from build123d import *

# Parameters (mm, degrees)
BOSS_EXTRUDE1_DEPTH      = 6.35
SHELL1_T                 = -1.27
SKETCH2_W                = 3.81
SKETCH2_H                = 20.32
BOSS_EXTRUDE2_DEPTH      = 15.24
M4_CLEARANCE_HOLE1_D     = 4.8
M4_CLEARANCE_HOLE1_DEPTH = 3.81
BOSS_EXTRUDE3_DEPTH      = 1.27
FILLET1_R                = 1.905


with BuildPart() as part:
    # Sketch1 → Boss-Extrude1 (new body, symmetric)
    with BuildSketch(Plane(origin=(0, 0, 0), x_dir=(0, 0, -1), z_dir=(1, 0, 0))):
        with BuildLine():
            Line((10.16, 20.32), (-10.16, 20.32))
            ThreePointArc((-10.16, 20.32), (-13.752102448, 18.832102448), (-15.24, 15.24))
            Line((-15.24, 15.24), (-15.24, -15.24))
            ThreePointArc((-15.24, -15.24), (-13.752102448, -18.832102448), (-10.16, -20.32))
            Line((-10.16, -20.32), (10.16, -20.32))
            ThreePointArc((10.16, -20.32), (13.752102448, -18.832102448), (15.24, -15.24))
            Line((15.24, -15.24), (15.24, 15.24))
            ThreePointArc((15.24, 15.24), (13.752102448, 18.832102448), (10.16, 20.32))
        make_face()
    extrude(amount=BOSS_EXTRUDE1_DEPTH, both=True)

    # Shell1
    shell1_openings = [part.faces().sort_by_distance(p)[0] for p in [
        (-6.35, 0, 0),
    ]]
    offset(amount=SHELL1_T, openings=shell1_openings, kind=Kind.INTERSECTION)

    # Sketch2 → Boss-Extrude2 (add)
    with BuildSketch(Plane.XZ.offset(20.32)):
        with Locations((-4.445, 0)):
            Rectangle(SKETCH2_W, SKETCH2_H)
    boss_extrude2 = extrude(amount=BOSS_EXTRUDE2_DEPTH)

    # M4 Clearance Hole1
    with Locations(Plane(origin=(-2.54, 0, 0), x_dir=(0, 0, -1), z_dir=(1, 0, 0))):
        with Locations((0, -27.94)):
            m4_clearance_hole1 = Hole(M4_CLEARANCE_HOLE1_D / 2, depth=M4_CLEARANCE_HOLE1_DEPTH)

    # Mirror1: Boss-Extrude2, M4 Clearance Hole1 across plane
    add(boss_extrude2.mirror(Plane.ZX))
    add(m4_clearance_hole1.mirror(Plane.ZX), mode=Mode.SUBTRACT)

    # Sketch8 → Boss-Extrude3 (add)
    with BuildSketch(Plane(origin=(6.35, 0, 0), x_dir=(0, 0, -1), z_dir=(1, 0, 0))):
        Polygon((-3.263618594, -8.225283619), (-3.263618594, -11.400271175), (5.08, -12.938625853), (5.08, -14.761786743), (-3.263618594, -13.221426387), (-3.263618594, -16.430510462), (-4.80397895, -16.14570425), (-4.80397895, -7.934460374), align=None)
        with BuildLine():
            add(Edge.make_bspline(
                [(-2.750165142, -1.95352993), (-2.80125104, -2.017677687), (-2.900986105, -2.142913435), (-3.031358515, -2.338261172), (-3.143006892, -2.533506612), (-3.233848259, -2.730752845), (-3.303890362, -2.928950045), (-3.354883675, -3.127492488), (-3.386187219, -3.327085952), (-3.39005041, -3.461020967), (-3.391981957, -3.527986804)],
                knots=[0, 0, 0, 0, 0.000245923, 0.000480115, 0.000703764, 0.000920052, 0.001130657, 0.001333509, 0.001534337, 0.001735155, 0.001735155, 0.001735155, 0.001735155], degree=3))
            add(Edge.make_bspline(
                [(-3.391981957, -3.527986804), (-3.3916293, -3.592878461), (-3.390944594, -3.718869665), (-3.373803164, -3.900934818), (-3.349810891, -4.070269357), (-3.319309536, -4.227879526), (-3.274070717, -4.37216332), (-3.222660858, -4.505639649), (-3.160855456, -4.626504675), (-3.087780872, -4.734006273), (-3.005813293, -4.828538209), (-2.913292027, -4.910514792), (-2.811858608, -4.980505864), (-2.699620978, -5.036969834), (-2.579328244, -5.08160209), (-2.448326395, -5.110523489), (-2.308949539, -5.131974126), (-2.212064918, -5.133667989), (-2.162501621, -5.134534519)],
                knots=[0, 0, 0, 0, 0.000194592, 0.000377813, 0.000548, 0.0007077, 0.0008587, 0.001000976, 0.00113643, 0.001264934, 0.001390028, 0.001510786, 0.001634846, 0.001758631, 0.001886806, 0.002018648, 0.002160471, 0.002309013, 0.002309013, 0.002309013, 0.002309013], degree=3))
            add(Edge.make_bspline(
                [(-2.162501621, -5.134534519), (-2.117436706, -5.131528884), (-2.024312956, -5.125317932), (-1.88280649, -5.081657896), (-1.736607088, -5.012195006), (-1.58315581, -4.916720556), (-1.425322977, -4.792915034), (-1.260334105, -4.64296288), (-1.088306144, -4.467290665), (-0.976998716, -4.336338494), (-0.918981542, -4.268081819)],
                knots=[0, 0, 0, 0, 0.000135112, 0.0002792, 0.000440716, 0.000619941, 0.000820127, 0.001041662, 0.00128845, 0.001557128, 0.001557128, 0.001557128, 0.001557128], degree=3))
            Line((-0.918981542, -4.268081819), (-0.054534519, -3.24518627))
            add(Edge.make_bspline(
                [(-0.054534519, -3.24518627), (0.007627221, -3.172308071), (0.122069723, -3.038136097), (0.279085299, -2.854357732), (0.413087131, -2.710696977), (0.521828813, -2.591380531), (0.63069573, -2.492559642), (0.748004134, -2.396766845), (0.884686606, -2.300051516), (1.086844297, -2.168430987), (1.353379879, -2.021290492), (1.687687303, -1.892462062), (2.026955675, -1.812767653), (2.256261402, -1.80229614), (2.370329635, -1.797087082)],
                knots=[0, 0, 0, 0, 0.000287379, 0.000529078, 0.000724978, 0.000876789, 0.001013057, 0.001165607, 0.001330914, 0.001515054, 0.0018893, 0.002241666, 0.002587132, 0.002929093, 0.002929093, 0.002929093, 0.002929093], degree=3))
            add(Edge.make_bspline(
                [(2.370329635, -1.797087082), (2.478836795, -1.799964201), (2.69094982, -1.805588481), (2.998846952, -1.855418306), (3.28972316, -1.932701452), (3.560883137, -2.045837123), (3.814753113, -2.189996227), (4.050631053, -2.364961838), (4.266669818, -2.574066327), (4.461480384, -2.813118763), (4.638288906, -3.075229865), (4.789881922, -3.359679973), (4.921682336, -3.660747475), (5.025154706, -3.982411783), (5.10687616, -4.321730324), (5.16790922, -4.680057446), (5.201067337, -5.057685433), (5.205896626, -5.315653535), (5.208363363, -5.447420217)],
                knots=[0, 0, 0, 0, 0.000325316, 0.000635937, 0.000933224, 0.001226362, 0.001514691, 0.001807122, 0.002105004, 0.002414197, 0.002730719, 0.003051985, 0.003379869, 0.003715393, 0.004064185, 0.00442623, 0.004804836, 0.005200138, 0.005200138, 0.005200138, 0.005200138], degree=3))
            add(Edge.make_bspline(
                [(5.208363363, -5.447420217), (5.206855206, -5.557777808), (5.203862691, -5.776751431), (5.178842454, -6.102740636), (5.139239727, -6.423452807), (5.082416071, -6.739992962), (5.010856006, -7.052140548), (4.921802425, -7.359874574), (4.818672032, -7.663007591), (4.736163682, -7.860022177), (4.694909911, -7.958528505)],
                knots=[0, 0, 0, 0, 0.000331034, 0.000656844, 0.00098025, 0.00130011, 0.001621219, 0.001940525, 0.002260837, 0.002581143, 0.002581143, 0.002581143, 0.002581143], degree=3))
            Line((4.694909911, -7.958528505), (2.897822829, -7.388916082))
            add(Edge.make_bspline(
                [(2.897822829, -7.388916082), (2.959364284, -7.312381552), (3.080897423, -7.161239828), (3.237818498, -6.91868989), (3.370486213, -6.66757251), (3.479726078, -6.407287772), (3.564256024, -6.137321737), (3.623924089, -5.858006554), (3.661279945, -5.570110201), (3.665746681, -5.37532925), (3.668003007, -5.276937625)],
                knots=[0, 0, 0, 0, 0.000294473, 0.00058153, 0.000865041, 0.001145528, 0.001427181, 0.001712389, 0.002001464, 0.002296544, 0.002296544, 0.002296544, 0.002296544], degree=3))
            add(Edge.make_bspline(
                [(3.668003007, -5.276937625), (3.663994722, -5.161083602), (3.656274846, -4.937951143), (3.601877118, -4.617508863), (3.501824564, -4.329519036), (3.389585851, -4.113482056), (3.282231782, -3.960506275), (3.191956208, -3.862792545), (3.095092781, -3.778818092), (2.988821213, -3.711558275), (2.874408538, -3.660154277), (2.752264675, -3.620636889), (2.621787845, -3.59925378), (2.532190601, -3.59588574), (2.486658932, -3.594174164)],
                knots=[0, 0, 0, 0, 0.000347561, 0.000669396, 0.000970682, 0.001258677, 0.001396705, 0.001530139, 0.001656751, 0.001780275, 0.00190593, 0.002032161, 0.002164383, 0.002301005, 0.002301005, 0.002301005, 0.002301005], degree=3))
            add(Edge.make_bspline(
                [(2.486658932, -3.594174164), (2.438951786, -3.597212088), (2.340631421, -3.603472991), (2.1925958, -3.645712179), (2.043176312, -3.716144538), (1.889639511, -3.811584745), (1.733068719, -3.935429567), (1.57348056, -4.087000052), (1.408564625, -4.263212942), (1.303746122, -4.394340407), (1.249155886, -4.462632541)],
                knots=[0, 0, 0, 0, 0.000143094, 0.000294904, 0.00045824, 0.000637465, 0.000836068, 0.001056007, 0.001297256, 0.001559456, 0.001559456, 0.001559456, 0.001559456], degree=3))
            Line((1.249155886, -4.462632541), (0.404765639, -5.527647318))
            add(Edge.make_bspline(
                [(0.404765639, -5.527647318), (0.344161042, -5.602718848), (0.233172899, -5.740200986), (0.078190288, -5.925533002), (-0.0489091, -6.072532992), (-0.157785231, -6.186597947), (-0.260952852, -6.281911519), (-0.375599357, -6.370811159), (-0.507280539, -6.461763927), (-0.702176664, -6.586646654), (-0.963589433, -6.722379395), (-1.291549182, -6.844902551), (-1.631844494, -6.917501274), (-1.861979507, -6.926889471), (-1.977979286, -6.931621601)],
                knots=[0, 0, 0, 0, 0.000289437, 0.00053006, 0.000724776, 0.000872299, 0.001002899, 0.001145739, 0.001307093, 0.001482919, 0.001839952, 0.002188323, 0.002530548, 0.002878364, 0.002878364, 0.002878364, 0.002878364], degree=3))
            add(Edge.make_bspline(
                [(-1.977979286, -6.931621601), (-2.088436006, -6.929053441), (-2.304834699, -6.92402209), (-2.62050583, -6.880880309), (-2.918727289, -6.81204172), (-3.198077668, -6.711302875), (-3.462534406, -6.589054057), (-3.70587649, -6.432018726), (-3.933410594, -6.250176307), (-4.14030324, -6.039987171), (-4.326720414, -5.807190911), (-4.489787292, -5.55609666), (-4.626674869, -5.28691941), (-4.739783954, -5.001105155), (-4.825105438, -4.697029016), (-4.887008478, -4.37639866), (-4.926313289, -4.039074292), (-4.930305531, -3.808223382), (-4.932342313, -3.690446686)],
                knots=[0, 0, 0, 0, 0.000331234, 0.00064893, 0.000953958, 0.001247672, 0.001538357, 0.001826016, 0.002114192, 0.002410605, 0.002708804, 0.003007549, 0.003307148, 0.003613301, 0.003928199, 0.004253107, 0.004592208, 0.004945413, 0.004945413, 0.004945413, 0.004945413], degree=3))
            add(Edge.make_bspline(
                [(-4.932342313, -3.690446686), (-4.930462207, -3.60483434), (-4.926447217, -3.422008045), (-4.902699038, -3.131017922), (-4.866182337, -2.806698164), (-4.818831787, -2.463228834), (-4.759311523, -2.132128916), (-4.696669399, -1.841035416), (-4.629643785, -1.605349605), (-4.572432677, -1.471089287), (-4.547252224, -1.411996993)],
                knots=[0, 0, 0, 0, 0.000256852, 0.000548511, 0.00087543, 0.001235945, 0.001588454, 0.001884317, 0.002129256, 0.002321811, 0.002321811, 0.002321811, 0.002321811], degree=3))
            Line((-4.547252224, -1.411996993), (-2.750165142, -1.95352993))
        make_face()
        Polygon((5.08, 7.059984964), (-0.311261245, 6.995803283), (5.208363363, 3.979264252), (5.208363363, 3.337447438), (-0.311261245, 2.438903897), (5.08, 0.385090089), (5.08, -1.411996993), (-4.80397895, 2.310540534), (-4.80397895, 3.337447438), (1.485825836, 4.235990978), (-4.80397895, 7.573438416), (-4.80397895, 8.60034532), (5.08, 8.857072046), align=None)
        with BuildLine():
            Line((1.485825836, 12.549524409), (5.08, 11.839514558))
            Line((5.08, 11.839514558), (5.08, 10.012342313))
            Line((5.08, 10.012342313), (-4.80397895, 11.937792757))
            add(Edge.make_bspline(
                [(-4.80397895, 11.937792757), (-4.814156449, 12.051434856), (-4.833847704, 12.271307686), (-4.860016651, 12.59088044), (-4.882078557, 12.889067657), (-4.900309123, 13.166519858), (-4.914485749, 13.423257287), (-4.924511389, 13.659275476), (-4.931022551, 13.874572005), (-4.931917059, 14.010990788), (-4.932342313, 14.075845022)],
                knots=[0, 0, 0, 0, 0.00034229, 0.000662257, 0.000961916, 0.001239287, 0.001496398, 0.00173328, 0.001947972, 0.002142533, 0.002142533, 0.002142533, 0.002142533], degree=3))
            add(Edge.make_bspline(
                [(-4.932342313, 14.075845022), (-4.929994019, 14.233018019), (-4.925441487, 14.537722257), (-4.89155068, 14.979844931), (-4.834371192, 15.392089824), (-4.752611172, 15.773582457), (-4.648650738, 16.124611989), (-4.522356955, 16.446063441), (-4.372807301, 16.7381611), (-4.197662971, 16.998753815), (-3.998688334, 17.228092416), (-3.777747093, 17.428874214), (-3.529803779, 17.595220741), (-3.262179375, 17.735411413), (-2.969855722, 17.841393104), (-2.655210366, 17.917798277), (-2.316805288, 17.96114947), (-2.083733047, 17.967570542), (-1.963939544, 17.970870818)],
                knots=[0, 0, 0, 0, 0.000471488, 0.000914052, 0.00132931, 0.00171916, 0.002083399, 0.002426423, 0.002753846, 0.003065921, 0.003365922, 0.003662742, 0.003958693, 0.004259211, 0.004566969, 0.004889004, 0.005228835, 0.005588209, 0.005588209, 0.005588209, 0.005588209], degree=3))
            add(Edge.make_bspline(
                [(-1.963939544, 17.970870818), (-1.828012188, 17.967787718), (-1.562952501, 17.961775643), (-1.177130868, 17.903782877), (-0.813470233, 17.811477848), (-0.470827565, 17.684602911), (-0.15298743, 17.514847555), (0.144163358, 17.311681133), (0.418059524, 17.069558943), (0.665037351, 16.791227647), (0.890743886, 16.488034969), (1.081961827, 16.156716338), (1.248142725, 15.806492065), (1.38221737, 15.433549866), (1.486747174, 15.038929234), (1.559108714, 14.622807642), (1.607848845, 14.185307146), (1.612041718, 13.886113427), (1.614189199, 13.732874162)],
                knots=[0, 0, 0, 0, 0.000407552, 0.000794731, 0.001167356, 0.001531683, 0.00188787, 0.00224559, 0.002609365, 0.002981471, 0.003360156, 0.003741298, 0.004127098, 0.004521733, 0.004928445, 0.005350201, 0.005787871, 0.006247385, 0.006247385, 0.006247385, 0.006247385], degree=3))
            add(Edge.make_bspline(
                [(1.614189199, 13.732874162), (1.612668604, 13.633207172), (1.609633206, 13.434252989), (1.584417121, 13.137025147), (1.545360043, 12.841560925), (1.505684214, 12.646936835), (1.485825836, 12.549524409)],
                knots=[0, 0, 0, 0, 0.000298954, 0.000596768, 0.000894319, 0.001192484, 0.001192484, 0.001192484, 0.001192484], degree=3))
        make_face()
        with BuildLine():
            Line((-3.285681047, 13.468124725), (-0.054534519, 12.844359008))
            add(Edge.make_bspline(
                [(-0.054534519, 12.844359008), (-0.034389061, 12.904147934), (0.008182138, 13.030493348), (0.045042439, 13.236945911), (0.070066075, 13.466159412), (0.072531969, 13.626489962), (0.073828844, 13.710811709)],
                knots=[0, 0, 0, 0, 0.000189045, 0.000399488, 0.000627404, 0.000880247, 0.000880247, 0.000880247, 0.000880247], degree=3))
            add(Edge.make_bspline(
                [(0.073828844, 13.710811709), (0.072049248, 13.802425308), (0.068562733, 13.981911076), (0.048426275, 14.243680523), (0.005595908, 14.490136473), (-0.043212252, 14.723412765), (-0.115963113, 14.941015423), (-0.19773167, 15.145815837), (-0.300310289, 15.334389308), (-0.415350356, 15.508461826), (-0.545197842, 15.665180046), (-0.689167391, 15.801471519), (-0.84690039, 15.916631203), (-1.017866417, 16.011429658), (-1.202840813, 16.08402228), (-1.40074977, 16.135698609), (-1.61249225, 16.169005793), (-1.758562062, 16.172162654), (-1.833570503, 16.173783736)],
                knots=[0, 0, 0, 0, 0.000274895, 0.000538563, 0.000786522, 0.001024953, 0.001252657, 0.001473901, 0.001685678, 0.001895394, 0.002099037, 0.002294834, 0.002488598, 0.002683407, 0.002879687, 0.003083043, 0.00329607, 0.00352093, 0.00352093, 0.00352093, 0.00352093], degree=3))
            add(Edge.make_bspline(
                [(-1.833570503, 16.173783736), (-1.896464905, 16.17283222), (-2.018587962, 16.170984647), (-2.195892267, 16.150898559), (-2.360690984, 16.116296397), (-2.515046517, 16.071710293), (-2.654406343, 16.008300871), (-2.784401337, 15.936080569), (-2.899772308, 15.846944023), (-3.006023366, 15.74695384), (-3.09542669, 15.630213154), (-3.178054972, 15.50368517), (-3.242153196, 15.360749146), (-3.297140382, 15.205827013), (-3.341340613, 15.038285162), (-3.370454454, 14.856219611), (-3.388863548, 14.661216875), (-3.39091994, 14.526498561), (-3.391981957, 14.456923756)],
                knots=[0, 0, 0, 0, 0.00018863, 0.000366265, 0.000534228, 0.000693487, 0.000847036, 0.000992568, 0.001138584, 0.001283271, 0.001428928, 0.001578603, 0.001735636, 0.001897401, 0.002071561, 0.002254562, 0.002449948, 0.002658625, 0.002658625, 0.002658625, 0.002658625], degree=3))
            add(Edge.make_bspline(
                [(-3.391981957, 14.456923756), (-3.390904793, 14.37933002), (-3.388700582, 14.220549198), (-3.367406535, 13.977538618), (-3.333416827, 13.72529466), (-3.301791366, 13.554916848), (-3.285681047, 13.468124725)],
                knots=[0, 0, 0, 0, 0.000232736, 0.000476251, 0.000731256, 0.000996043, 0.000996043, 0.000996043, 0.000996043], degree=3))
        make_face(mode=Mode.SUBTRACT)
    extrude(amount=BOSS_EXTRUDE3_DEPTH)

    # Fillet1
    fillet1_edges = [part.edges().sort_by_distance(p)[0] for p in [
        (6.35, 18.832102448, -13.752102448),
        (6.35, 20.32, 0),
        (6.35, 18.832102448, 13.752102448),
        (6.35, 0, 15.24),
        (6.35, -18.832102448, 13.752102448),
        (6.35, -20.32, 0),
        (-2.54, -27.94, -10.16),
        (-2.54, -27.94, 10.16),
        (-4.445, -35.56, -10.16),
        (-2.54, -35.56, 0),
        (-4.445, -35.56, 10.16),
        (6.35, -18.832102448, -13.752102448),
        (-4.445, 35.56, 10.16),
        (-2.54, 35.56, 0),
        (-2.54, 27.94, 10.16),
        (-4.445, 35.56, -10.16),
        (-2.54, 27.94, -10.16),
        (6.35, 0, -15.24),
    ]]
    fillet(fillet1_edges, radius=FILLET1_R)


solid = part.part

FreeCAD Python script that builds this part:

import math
import FreeCAD as App
import Part
import Sketcher

V = App.Vector
Q = App.Units.Quantity


def edges_at(feature, points):
    """Names of the edges that pass closest to the given points."""
    edges = feature.Shape.Edges
    near = lambda p: min(range(len(edges)), key=lambda i: edges[i].distToShape(Part.Vertex(*p))[0])
    return sorted({f"Edge{near(p) + 1}" for p in points})


def faces_at(feature, points):
    """Names of the faces that lie closest to the given points."""
    faces = feature.Shape.Faces
    near = lambda p: min(range(len(faces)), key=lambda i: faces[i].distToShape(Part.Vertex(*p))[0])
    return sorted({f"Face{near(p) + 1}" for p in points})

doc = App.newDocument("Part")
body = doc.addObject("PartDesign::Body", "Body")

# Sketch on YZ plane
sketch1 = body.newObject("Sketcher::SketchObject", "Sketch")
sketch1.AttachmentSupport = (doc.getObject("YZ_Plane"), [""])
sketch1.MapMode = "FlatFace"
sketch1.addGeometry([
    Part.LineSegment(V(20.32, -10.16, 0), V(20.32, 10.16, 0)),  # 0
    Part.ArcOfCircle(Part.Circle(V(15.24, 10.16, 0), V(0, 0, 1), 5.08), math.radians(0), math.radians(90)),  # 1
    Part.LineSegment(V(15.24, 15.24, 0), V(-15.24, 15.24, 0)),  # 2
    Part.ArcOfCircle(Part.Circle(V(-15.24, 10.16, 0), V(0, 0, 1), 5.08), math.radians(90), math.radians(180)),  # 3
    Part.LineSegment(V(-20.32, 10.16, 0), V(-20.32, -10.16, 0)),  # 4
    Part.ArcOfCircle(Part.Circle(V(-15.24, -10.16, 0), V(0, 0, 1), 5.08), math.radians(-180), math.radians(-90)),  # 5
    Part.LineSegment(V(-15.24, -15.24, 0), V(15.24, -15.24, 0)),  # 6
    Part.ArcOfCircle(Part.Circle(V(15.24, -10.16, 0), V(0, 0, 1), 5.08), math.radians(-90), math.radians(0)),  # 7
], False)
sketch1.addConstraint([
    Sketcher.Constraint("Tangent", 0, 2, 1, 1),
    Sketcher.Constraint("Tangent", 1, 2, 2, 1),
    Sketcher.Constraint("Tangent", 2, 2, 3, 1),
    Sketcher.Constraint("Tangent", 3, 2, 4, 1),
    Sketcher.Constraint("Tangent", 4, 2, 5, 1),
    Sketcher.Constraint("Tangent", 5, 2, 6, 1),
    Sketcher.Constraint("Tangent", 6, 2, 7, 1),
    Sketcher.Constraint("Tangent", 7, 2, 0, 1),
    Sketcher.Constraint("Vertical", 0),
    Sketcher.Constraint("Horizontal", 2),
    Sketcher.Constraint("Vertical", 4),
    Sketcher.Constraint("Horizontal", 6),
    Sketcher.Constraint("Equal", 1, 3),
    Sketcher.Constraint("Equal", 3, 5),
    Sketcher.Constraint("Equal", 5, 7),
    Sketcher.Constraint("Symmetric", 1, 3, 5, 3, -1, 1),
    Sketcher.Constraint("Radius", 1, Q("0.2 in")),
    Sketcher.Constraint("DistanceX", 2, 2, 2, 1, Q("1.2 in")),
    Sketcher.Constraint("DistanceY", 0, 1, 0, 2, Q("0.8 in")),
])
pad1 = body.newObject("PartDesign::Pad", "Pad")
pad1.Profile = sketch1
pad1.Length = Q("0.5 in")
pad1.Midplane = True
doc.recompute()

thickness = body.newObject("PartDesign::Thickness", "Thickness")
thickness.Base = (pad1, faces_at(pad1, [(-6.35, 0, 0)]))
thickness.Value = Q("0.05 in")
thickness.Reversed = True
thickness.Join = "Intersection"

# Sketch on XZ plane
sketch2 = body.newObject("Sketcher::SketchObject", "Sketch001")
sketch2.AttachmentSupport = (doc.getObject("XZ_Plane"), [""])
sketch2.MapMode = "FlatFace"
sketch2.AttachmentOffset = App.Placement(V(0, 0, 0.8 * 25.4), App.Rotation())
sketch2.addGeometry([
    Part.LineSegment(V(-6.35, 10.16, 0), V(-6.35, -10.16, 0)),
    Part.LineSegment(V(-6.35, -10.16, 0), V(-2.54, -10.16, 0)),
    Part.LineSegment(V(-2.54, -10.16, 0), V(-2.54, 10.16, 0)),
    Part.LineSegment(V(-2.54, 10.16, 0), V(-6.35, 10.16, 0)),
], False)
sketch2.addConstraint([
    Sketcher.Constraint("Coincident", 0, 2, 1, 1),
    Sketcher.Constraint("Coincident", 1, 2, 2, 1),
    Sketcher.Constraint("Coincident", 2, 2, 3, 1),
    Sketcher.Constraint("Coincident", 3, 2, 0, 1),
    Sketcher.Constraint("Vertical", 0),
    Sketcher.Constraint("Horizontal", 1),
    Sketcher.Constraint("Vertical", 2),
    Sketcher.Constraint("Horizontal", 3),
    Sketcher.Constraint("DistanceY", 0, 2, 0, 1, Q("0.8 in")),
    Sketcher.Constraint("DistanceX", 1, 1, 1, 2, Q("0.15 in")),
    Sketcher.Constraint("DistanceY", 0, 2, -1, 1, Q("0.4 in")),
    Sketcher.Constraint("DistanceX", 1, 2, -1, 1, Q("0.1 in")),
])
pad2 = body.newObject("PartDesign::Pad", "Pad001")
pad2.Profile = sketch2
pad2.Length = Q("0.6 in")

# Sketch on YZ plane
sketch3 = body.newObject("Sketcher::SketchObject", "Sketch002")
sketch3.AttachmentSupport = (doc.getObject("YZ_Plane"), [""])
sketch3.MapMode = "FlatFace"
sketch3.AttachmentOffset = App.Placement(V(0, 0, -0.1 * 25.4), App.Rotation())
sketch3.addGeometry(Part.Circle(V(-27.94, 0, 0), V(0, 0, 1), 2.4), False)
sketch3.addConstraint([
    Sketcher.Constraint("PointOnObject", 0, 3, -1),
    Sketcher.Constraint("DistanceX", 0, 3, -1, 1, Q("1.1 in")),
    Sketcher.Constraint("Diameter", 0, 4.8),
])
doc.recompute()
hole = body.newObject("PartDesign::Hole", "Hole")
hole.Profile = sketch3
hole.ThreadType = "None"
hole.Diameter = 4.8
hole.DepthType = "Dimension"
hole.Depth = Q("0.15 in")
hole.DrillPoint = "Flat"
doc.recompute()

mirrored = body.newObject("PartDesign::Mirrored", "Mirrored")
mirrored.Originals = [pad2, hole]
mirrored.MirrorPlane = (doc.getObject("XZ_Plane"), [""])
body.Tip = mirrored

# Sketch on YZ plane
sketch4 = body.newObject("Sketcher::SketchObject", "Sketch003")
sketch4.AttachmentSupport = (doc.getObject("YZ_Plane"), [""])
sketch4.MapMode = "FlatFace"
sketch4.AttachmentOffset = App.Placement(V(0, 0, 0.25 * 25.4), App.Rotation())
sketch4.addGeometry([
    Part.LineSegment(V(-11.400271, 3.263619, 0), V(-8.225284, 3.263619, 0)),  # 0
    Part.LineSegment(V(-8.225284, 3.263619, 0), V(-7.93446, 4.803979, 0)),  # 1
    Part.LineSegment(V(-7.93446, 4.803979, 0), V(-16.145704, 4.803979, 0)),  # 2
    Part.LineSegment(V(-16.145704, 4.803979, 0), V(-16.43051, 3.263619, 0)),  # 3
    Part.LineSegment(V(-16.43051, 3.263619, 0), V(-13.221426, 3.263619, 0)),  # 4
    Part.LineSegment(V(-13.221426, 3.263619, 0), V(-14.761787, -5.08, 0)),  # 5
    Part.LineSegment(V(-14.761787, -5.08, 0), V(-12.938626, -5.08, 0)),  # 6
    Part.LineSegment(V(-12.938626, -5.08, 0), V(-11.400271, 3.263619, 0)),  # 7
    Part.BSplineCurve([V(-1.95353, 2.750165, 0), V(-2.017678, 2.801251, 0), V(-2.142913, 2.900986, 0), V(-2.338261, 3.031359, 0), V(-2.533507, 3.143007, 0), V(-2.730753, 3.233848, 0), V(-2.92895, 3.30389, 0), V(-3.127492, 3.354884, 0), V(-3.327086, 3.386187, 0), V(-3.461021, 3.39005, 0), V(-3.527987, 3.391982, 0)], [4, 1, 1, 1, 1, 1, 1, 1, 4], [0, 0.000245923, 0.000480115, 0.000703764, 0.000920052, 0.001130657, 0.001333509, 0.001534337, 0.001735155], False, 3, [1, 1, 1, 1, 1, 1, 1, 1, 1, 1, 1], False),  # 8
    Part.LineSegment(V(-1.95353, 2.750165, 0), V(-1.411997, 4.547252, 0)),  # 9
    Part.BSplineCurve([V(-3.690447, 4.932342, 0), V(-3.604834, 4.930462, 0), V(-3.422008, 4.926447, 0), V(-3.131018, 4.902699, 0), V(-2.806698, 4.866182, 0), V(-2.463229, 4.818832, 0), V(-2.132129, 4.759312, 0), V(-1.841035, 4.696669, 0), V(-1.60535, 4.629644, 0), V(-1.471089, 4.572433, 0), V(-1.411997, 4.547252, 0)], [4, 1, 1, 1, 1, 1, 1, 1, 4], [0, 0.000256852, 0.000548511, 0.00087543, 0.001235945, 0.001588454, 0.001884317, 0.002129256, 0.002321811], False, 3, [1, 1, 1, 1, 1, 1, 1, 1, 1, 1, 1], False),  # 10
    Part.BSplineCurve([V(-6.931622, 1.977979, 0), V(-6.929053, 2.088436, 0), V(-6.924022, 2.304835, 0), V(-6.88088, 2.620506, 0), V(-6.812042, 2.918727, 0), V(-6.711303, 3.198078, 0), V(-6.589054, 3.462534, 0), V(-6.432019, 3.705876, 0), V(-6.250176, 3.933411, 0), V(-6.039987, 4.140303, 0), V(-5.807191, 4.32672, 0), V(-5.556097, 4.489787, 0), V(-5.286919, 4.626675, 0), V(-5.001105, 4.739784, 0), V(-4.697029, 4.825105, 0), V(-4.376399, 4.887008, 0), V(-4.039074, 4.926313, 0), V(-3.808223, 4.930306, 0), V(-3.690447, 4.932342, 0)], [4, 1, 1, 1, 1, 1, 1, 1, 1, 1, 1, 1, 1, 1, 1, 1, 4], [0, 0.000331234, 0.00064893, 0.000953958, 0.001247672, 0.001538357, 0.001826016, 0.002114192, 0.002410605, 0.002708804, 0.003007549, 0.003307148, 0.003613301, 0.003928199, 0.004253107, 0.004592208, 0.004945413], False, 3, [1, 1, 1, 1, 1, 1, 1, 1, 1, 1, 1, 1, 1, 1, 1, 1, 1, 1, 1], False),  # 11
    Part.BSplineCurve([V(-5.527647, -0.404766, 0), V(-5.602719, -0.344161, 0), V(-5.740201, -0.233173, 0), V(-5.925533, -0.07819, 0), V(-6.072533, 0.048909, 0), V(-6.186598, 0.157785, 0), V(-6.281912, 0.260953, 0), V(-6.370811, 0.375599, 0), V(-6.461764, 0.507281, 0), V(-6.586647, 0.702177, 0), V(-6.722379, 0.963589, 0), V(-6.844903, 1.291549, 0), V(-6.917501, 1.631844, 0), V(-6.926889, 1.86198, 0), V(-6.931622, 1.977979, 0)], [4, 1, 1, 1, 1, 1, 1, 1, 1, 1, 1, 1, 4], [0, 0.000289437, 0.00053006, 0.000724776, 0.000872299, 0.001002899, 0.001145739, 0.001307093, 0.001482919, 0.001839952, 0.002188323, 0.002530548, 0.002878364], False, 3, [1, 1, 1, 1, 1, 1, 1, 1, 1, 1, 1, 1, 1, 1, 1], False),  # 12
    Part.LineSegment(V(-5.527647, -0.404766, 0), V(-4.462633, -1.249156, 0)),  # 13
    Part.BSplineCurve([V(-3.594174, -2.486659, 0), V(-3.597212, -2.438952, 0), V(-3.603473, -2.340631, 0), V(-3.645712, -2.192596, 0), V(-3.716145, -2.043176, 0), V(-3.811585, -1.88964, 0), V(-3.93543, -1.733069, 0), V(-4.087, -1.573481, 0), V(-4.263213, -1.408565, 0), V(-4.39434, -1.303746, 0), V(-4.462633, -1.249156, 0)], [4, 1, 1, 1, 1, 1, 1, 1, 4], [0, 0.000143094, 0.000294904, 0.00045824, 0.000637465, 0.000836068, 0.001056007, 0.001297256, 0.001559456], False, 3, [1, 1, 1, 1, 1, 1, 1, 1, 1, 1, 1], False),  # 14
    Part.BSplineCurve([V(-5.276938, -3.668003, 0), V(-5.161084, -3.663995, 0), V(-4.937951, -3.656275, 0), V(-4.617509, -3.601877, 0), V(-4.329519, -3.501825, 0), V(-4.113482, -3.389586, 0), V(-3.960506, -3.282232, 0), V(-3.862793, -3.191956, 0), V(-3.778818, -3.095093, 0), V(-3.711558, -2.988821, 0), V(-3.660154, -2.874409, 0), V(-3.620637, -2.752265, 0), V(-3.599254, -2.621788, 0), V(-3.595886, -2.532191, 0), V(-3.594174, -2.486659, 0)], [4, 1, 1, 1, 1, 1, 1, 1, 1, 1, 1, 1, 4], [0, 0.000347561, 0.000669396, 0.000970682, 0.001258677, 0.001396705, 0.001530139, 0.001656751, 0.001780275, 0.00190593, 0.002032161, 0.002164383, 0.002301005], False, 3, [1, 1, 1, 1, 1, 1, 1, 1, 1, 1, 1, 1, 1, 1, 1], False),  # 15
    Part.BSplineCurve([V(-7.388916, -2.897823, 0), V(-7.312382, -2.959364, 0), V(-7.16124, -3.080897, 0), V(-6.91869, -3.237818, 0), V(-6.667573, -3.370486, 0), V(-6.407288, -3.479726, 0), V(-6.137322, -3.564256, 0), V(-5.858007, -3.623924, 0), V(-5.57011, -3.66128, 0), V(-5.375329, -3.665747, 0), V(-5.276938, -3.668003, 0)], [4, 1, 1, 1, 1, 1, 1, 1, 4], [0, 0.000294473, 0.00058153, 0.000865041, 0.001145528, 0.001427181, 0.001712389, 0.002001464, 0.002296544], False, 3, [1, 1, 1, 1, 1, 1, 1, 1, 1, 1, 1], False),  # 16
    Part.LineSegment(V(-7.388916, -2.897823, 0), V(-7.958529, -4.69491, 0)),  # 17
    Part.BSplineCurve([V(-5.44742, -5.208363, 0), V(-5.557778, -5.206855, 0), V(-5.776751, -5.203863, 0), V(-6.102741, -5.178842, 0), V(-6.423453, -5.13924, 0), V(-6.739993, -5.082416, 0), V(-7.052141, -5.010856, 0), V(-7.359875, -4.921802, 0), V(-7.663008, -4.818672, 0), V(-7.860022, -4.736164, 0), V(-7.958529, -4.69491, 0)], [4, 1, 1, 1, 1, 1, 1, 1, 4], [0, 0.000331034, 0.000656844, 0.00098025, 0.00130011, 0.001621219, 0.001940525, 0.002260837, 0.002581143], False, 3, [1, 1, 1, 1, 1, 1, 1, 1, 1, 1, 1], False),  # 18
    Part.BSplineCurve([V(-1.797087, -2.37033, 0), V(-1.799964, -2.478837, 0), V(-1.805588, -2.69095, 0), V(-1.855418, -2.998847, 0), V(-1.932701, -3.289723, 0), V(-2.045837, -3.560883, 0), V(-2.189996, -3.814753, 0), V(-2.364962, -4.050631, 0), V(-2.574066, -4.26667, 0), V(-2.813119, -4.46148, 0), V(-3.07523, -4.638289, 0), V(-3.35968, -4.789882, 0), V(-3.660747, -4.921682, 0), V(-3.982412, -5.025155, 0), V(-4.32173, -5.106876, 0), V(-4.680057, -5.167909, 0), V(-5.057685, -5.201067, 0), V(-5.315654, -5.205897, 0), V(-5.44742, -5.208363, 0)], [4, 1, 1, 1, 1, 1, 1, 1, 1, 1, 1, 1, 1, 1, 1, 1, 4], [0, 0.000325316, 0.000635937, 0.000933224, 0.001226362, 0.001514691, 0.001807122, 0.002105004, 0.002414197, 0.002730719, 0.003051985, 0.003379869, 0.003715393, 0.004064185, 0.00442623, 0.004804836, 0.005200138], False, 3, [1, 1, 1, 1, 1, 1, 1, 1, 1, 1, 1, 1, 1, 1, 1, 1, 1, 1, 1], False),  # 19
    Part.BSplineCurve([V(-3.245186, 0.054535, 0), V(-3.172308, -0.007627, 0), V(-3.038136, -0.12207, 0), V(-2.854358, -0.279085, 0), V(-2.710697, -0.413087, 0), V(-2.591381, -0.521829, 0), V(-2.49256, -0.630696, 0), V(-2.396767, -0.748004, 0), V(-2.300052, -0.884687, 0), V(-2.168431, -1.086844, 0), V(-2.02129, -1.35338, 0), V(-1.892462, -1.687687, 0), V(-1.812768, -2.026956, 0), V(-1.802296, -2.256261, 0), V(-1.797087, -2.37033, 0)], [4, 1, 1, 1, 1, 1, 1, 1, 1, 1, 1, 1, 4], [0, 0.000287379, 0.000529078, 0.000724978, 0.000876789, 0.001013057, 0.001165607, 0.001330914, 0.001515054, 0.0018893, 0.002241666, 0.002587132, 0.002929093], False, 3, [1, 1, 1, 1, 1, 1, 1, 1, 1, 1, 1, 1, 1, 1, 1], False),  # 20
    Part.LineSegment(V(-3.245186, 0.054535, 0), V(-4.268082, 0.918982, 0)),  # 21
    Part.BSplineCurve([V(-5.134535, 2.162502, 0), V(-5.131529, 2.117437, 0), V(-5.125318, 2.024313, 0), V(-5.081658, 1.882806, 0), V(-5.012195, 1.736607, 0), V(-4.916721, 1.583156, 0), V(-4.792915, 1.425323, 0), V(-4.642963, 1.260334, 0), V(-4.467291, 1.088306, 0), V(-4.336338, 0.976999, 0), V(-4.268082, 0.918982, 0)], [4, 1, 1, 1, 1, 1, 1, 1, 4], [0, 0.000135112, 0.0002792, 0.000440716, 0.000619941, 0.000820127, 0.001041662, 0.00128845, 0.001557128], False, 3, [1, 1, 1, 1, 1, 1, 1, 1, 1, 1, 1], False),  # 22
    Part.BSplineCurve([V(-3.527987, 3.391982, 0), V(-3.592878, 3.391629, 0), V(-3.71887, 3.390945, 0), V(-3.900935, 3.373803, 0), V(-4.070269, 3.349811, 0), V(-4.22788, 3.31931, 0), V(-4.372163, 3.274071, 0), V(-4.50564, 3.222661, 0), V(-4.626505, 3.160855, 0), V(-4.734006, 3.087781, 0), V(-4.828538, 3.005813, 0), V(-4.910515, 2.913292, 0), V(-4.980506, 2.811859, 0), V(-5.03697, 2.699621, 0), V(-5.081602, 2.579328, 0), V(-5.110523, 2.448326, 0), V(-5.131974, 2.30895, 0), V(-5.133668, 2.212065, 0), V(-5.134535, 2.162502, 0)], [4, 1, 1, 1, 1, 1, 1, 1, 1, 1, 1, 1, 1, 1, 1, 1, 4], [0, 0.000194592, 0.000377813, 0.000548, 0.0007077, 0.0008587, 0.001000976, 0.00113643, 0.001264934, 0.001390028, 0.001510786, 0.001634846, 0.001758631, 0.001886806, 0.002018648, 0.002160471, 0.002309013], False, 3, [1, 1, 1, 1, 1, 1, 1, 1, 1, 1, 1, 1, 1, 1, 1, 1, 1, 1, 1], False),  # 23
    Part.LineSegment(V(6.995803, 0.311261, 0), V(7.059985, -5.08, 0)),  # 24
    Part.LineSegment(V(7.059985, -5.08, 0), V(8.857072, -5.08, 0)),  # 25
    Part.LineSegment(V(8.857072, -5.08, 0), V(8.600345, 4.803979, 0)),  # 26
    Part.LineSegment(V(8.600345, 4.803979, 0), V(7.573438, 4.803979, 0)),  # 27
    Part.LineSegment(V(7.573438, 4.803979, 0), V(4.235991, -1.485826, 0)),  # 28
    Part.LineSegment(V(4.235991, -1.485826, 0), V(3.337447, 4.803979, 0)),  # 29
    Part.LineSegment(V(3.337447, 4.803979, 0), V(2.310541, 4.803979, 0)),  # 30
    Part.LineSegment(V(2.310541, 4.803979, 0), V(-1.411997, -5.08, 0)),  # 31
    Part.LineSegment(V(-1.411997, -5.08, 0), V(0.38509, -5.08, 0)),  # 32
    Part.LineSegment(V(0.38509, -5.08, 0), V(2.438904, 0.311261, 0)),  # 33
    Part.LineSegment(V(2.438904, 0.311261, 0), V(3.337447, -5.208363, 0)),  # 34
    Part.LineSegment(V(3.337447, -5.208363, 0), V(3.979264, -5.208363, 0)),  # 35
    Part.LineSegment(V(3.979264, -5.208363, 0), V(6.995803, 0.311261, 0)),  # 36
    Part.LineSegment(V(11.839515, -5.08, 0), V(12.549524, -1.485826, 0)),  # 37
    Part.BSplineCurve([V(13.732874, -1.614189, 0), V(13.633207, -1.612669, 0), V(13.434253, -1.609633, 0), V(13.137025, -1.584417, 0), V(12.841561, -1.54536, 0), V(12.646937, -1.505684, 0), V(12.549524, -1.485826, 0)], [4, 1, 1, 1, 4], [0, 0.000298954, 0.000596768, 0.000894319, 0.001192484], False, 3, [1, 1, 1, 1, 1, 1, 1], False),  # 38
    Part.BSplineCurve([V(17.970871, 1.96394, 0), V(17.967788, 1.828012, 0), V(17.961776, 1.562953, 0), V(17.903783, 1.177131, 0), V(17.811478, 0.81347, 0), V(17.684603, 0.470828, 0), V(17.514848, 0.152987, 0), V(17.311681, -0.144163, 0), V(17.069559, -0.41806, 0), V(16.791228, -0.665037, 0), V(16.488035, -0.890744, 0), V(16.156716, -1.081962, 0), V(15.806492, -1.248143, 0), V(15.43355, -1.382217, 0), V(15.038929, -1.486747, 0), V(14.622808, -1.559109, 0), V(14.185307, -1.607849, 0), V(13.886113, -1.612042, 0), V(13.732874, -1.614189, 0)], [4, 1, 1, 1, 1, 1, 1, 1, 1, 1, 1, 1, 1, 1, 1, 1, 4], [0, 0.000407552, 0.000794731, 0.001167356, 0.001531683, 0.00188787, 0.00224559, 0.002609365, 0.002981471, 0.003360156, 0.003741298, 0.004127098, 0.004521733, 0.004928445, 0.005350201, 0.005787871, 0.006247385], False, 3, [1, 1, 1, 1, 1, 1, 1, 1, 1, 1, 1, 1, 1, 1, 1, 1, 1, 1, 1], False),  # 39
    Part.BSplineCurve([V(14.075845, 4.932342, 0), V(14.233018, 4.929994, 0), V(14.537722, 4.925441, 0), V(14.979845, 4.891551, 0), V(15.39209, 4.834371, 0), V(15.773582, 4.752611, 0), V(16.124612, 4.648651, 0), V(16.446063, 4.522357, 0), V(16.738161, 4.372807, 0), V(16.998754, 4.197663, 0), V(17.228092, 3.998688, 0), V(17.428874, 3.777747, 0), V(17.595221, 3.529804, 0), V(17.735411, 3.262179, 0), V(17.841393, 2.969856, 0), V(17.917798, 2.65521, 0), V(17.961149, 2.316805, 0), V(17.967571, 2.083733, 0), V(17.970871, 1.96394, 0)], [4, 1, 1, 1, 1, 1, 1, 1, 1, 1, 1, 1, 1, 1, 1, 1, 4], [0, 0.000471488, 0.000914052, 0.00132931, 0.00171916, 0.002083399, 0.002426423, 0.002753846, 0.003065921, 0.003365922, 0.003662742, 0.003958693, 0.004259211, 0.004566969, 0.004889004, 0.005228835, 0.005588209], False, 3, [1, 1, 1, 1, 1, 1, 1, 1, 1, 1, 1, 1, 1, 1, 1, 1, 1, 1, 1], False),  # 40
    Part.BSplineCurve([V(11.937793, 4.803979, 0), V(12.051435, 4.814156, 0), V(12.271308, 4.833848, 0), V(12.59088, 4.860017, 0), V(12.889068, 4.882079, 0), V(13.16652, 4.900309, 0), V(13.423257, 4.914486, 0), V(13.659275, 4.924511, 0), V(13.874572, 4.931023, 0), V(14.010991, 4.931917, 0), V(14.075845, 4.932342, 0)], [4, 1, 1, 1, 1, 1, 1, 1, 4], [0, 0.00034229, 0.000662257, 0.000961916, 0.001239287, 0.001496398, 0.00173328, 0.001947972, 0.002142533], False, 3, [1, 1, 1, 1, 1, 1, 1, 1, 1, 1, 1], False),  # 41
    Part.LineSegment(V(11.937793, 4.803979, 0), V(10.012342, -5.08, 0)),  # 42
    Part.LineSegment(V(10.012342, -5.08, 0), V(11.839515, -5.08, 0)),  # 43
    Part.BSplineCurve([V(14.456924, 3.391982, 0), V(14.37933, 3.390905, 0), V(14.220549, 3.388701, 0), V(13.977539, 3.367407, 0), V(13.725295, 3.333417, 0), V(13.554917, 3.301791, 0), V(13.468125, 3.285681, 0)], [4, 1, 1, 1, 4], [0, 0.000232736, 0.000476251, 0.000731256, 0.000996043], False, 3, [1, 1, 1, 1, 1, 1, 1], False),  # 44
    Part.BSplineCurve([V(16.173784, 1.833571, 0), V(16.172832, 1.896465, 0), V(16.170985, 2.018588, 0), V(16.150899, 2.195892, 0), V(16.116296, 2.360691, 0), V(16.07171, 2.515047, 0), V(16.008301, 2.654406, 0), V(15.936081, 2.784401, 0), V(15.846944, 2.899772, 0), V(15.746954, 3.006023, 0), V(15.630213, 3.095427, 0), V(15.503685, 3.178055, 0), V(15.360749, 3.242153, 0), V(15.205827, 3.29714, 0), V(15.038285, 3.341341, 0), V(14.85622, 3.370454, 0), V(14.661217, 3.388864, 0), V(14.526499, 3.39092, 0), V(14.456924, 3.391982, 0)], [4, 1, 1, 1, 1, 1, 1, 1, 1, 1, 1, 1, 1, 1, 1, 1, 4], [0, 0.00018863, 0.000366265, 0.000534228, 0.000693487, 0.000847036, 0.000992568, 0.001138584, 0.001283271, 0.001428928, 0.001578603, 0.001735636, 0.001897401, 0.002071561, 0.002254562, 0.002449948, 0.002658625], False, 3, [1, 1, 1, 1, 1, 1, 1, 1, 1, 1, 1, 1, 1, 1, 1, 1, 1, 1, 1], False),  # 45
    Part.BSplineCurve([V(13.710812, -0.073829, 0), V(13.802425, -0.072049, 0), V(13.981911, -0.068563, 0), V(14.243681, -0.048426, 0), V(14.490136, -0.005596, 0), V(14.723413, 0.043212, 0), V(14.941015, 0.115963, 0), V(15.145816, 0.197732, 0), V(15.334389, 0.30031, 0), V(15.508462, 0.41535, 0), V(15.66518, 0.545198, 0), V(15.801472, 0.689167, 0), V(15.916631, 0.8469, 0), V(16.01143, 1.017866, 0), V(16.084022, 1.202841, 0), V(16.135699, 1.40075, 0), V(16.169006, 1.612492, 0), V(16.172163, 1.758562, 0), V(16.173784, 1.833571, 0)], [4, 1, 1, 1, 1, 1, 1, 1, 1, 1, 1, 1, 1, 1, 1, 1, 4], [0, 0.000274895, 0.000538563, 0.000786522, 0.001024953, 0.001252657, 0.001473901, 0.001685678, 0.001895394, 0.002099037, 0.002294834, 0.002488598, 0.002683407, 0.002879687, 0.003083043, 0.00329607, 0.00352093], False, 3, [1, 1, 1, 1, 1, 1, 1, 1, 1, 1, 1, 1, 1, 1, 1, 1, 1, 1, 1], False),  # 46
    Part.BSplineCurve([V(12.844359, 0.054535, 0), V(12.904148, 0.034389, 0), V(13.030493, -0.008182, 0), V(13.236946, -0.045042, 0), V(13.466159, -0.070066, 0), V(13.62649, -0.072532, 0), V(13.710812, -0.073829, 0)], [4, 1, 1, 1, 4], [0, 0.000189045, 0.000399488, 0.000627404, 0.000880247], False, 3, [1, 1, 1, 1, 1, 1, 1], False),  # 47
    Part.LineSegment(V(12.844359, 0.054535, 0), V(13.468125, 3.285681, 0)),  # 48
], False)
sketch4.addConstraint([
    Sketcher.Constraint("Block", 8),
    Sketcher.Constraint("Block", 10),
    Sketcher.Constraint("Block", 11),
    Sketcher.Constraint("Block", 12),
    Sketcher.Constraint("Block", 14),
    Sketcher.Constraint("Block", 15),
    Sketcher.Constraint("Block", 16),
    Sketcher.Constraint("Block", 18),
    Sketcher.Constraint("Block", 19),
    Sketcher.Constraint("Block", 20),
    Sketcher.Constraint("Block", 22),
    Sketcher.Constraint("Block", 23),
    Sketcher.Constraint("Block", 38),
    Sketcher.Constraint("Block", 39),
    Sketcher.Constraint("Block", 40),
    Sketcher.Constraint("Block", 41),
    Sketcher.Constraint("Block", 44),
    Sketcher.Constraint("Block", 45),
    Sketcher.Constraint("Block", 46),
    Sketcher.Constraint("Block", 47),
    Sketcher.Constraint("Coincident", 0, 2, 1, 1),
    Sketcher.Constraint("Coincident", 1, 2, 2, 1),
    Sketcher.Constraint("Coincident", 2, 2, 3, 1),
    Sketcher.Constraint("Coincident", 3, 2, 4, 1),
    Sketcher.Constraint("Coincident", 4, 2, 5, 1),
    Sketcher.Constraint("Coincident", 5, 2, 6, 1),
    Sketcher.Constraint("Coincident", 6, 2, 7, 1),
    Sketcher.Constraint("Coincident", 7, 2, 0, 1),
    Sketcher.Constraint("Coincident", 8, 1, 9, 1),
    Sketcher.Constraint("Coincident", 9, 2, 10, 2),
    Sketcher.Constraint("Coincident", 12, 1, 13, 1),
    Sketcher.Constraint("Coincident", 13, 2, 14, 2),
    Sketcher.Constraint("Coincident", 16, 1, 17, 1),
    Sketcher.Constraint("Coincident", 17, 2, 18, 2),
    Sketcher.Constraint("Coincident", 20, 1, 21, 1),
    Sketcher.Constraint("Coincident", 21, 2, 22, 2),
    Sketcher.Constraint("Coincident", 24, 2, 25, 1),
    Sketcher.Constraint("Coincident", 25, 2, 26, 1),
    Sketcher.Constraint("Coincident", 26, 2, 27, 1),
    Sketcher.Constraint("Coincident", 27, 2, 28, 1),
    Sketcher.Constraint("Coincident", 28, 2, 29, 1),
    Sketcher.Constraint("Coincident", 29, 2, 30, 1),
    Sketcher.Constraint("Coincident", 30, 2, 31, 1),
    Sketcher.Constraint("Coincident", 31, 2, 32, 1),
    Sketcher.Constraint("Coincident", 32, 2, 33, 1),
    Sketcher.Constraint("Coincident", 33, 2, 34, 1),
    Sketcher.Constraint("Coincident", 34, 2, 35, 1),
    Sketcher.Constraint("Coincident", 35, 2, 36, 1),
    Sketcher.Constraint("Coincident", 36, 2, 24, 1),
    Sketcher.Constraint("Coincident", 37, 2, 38, 2),
    Sketcher.Constraint("Coincident", 41, 1, 42, 1),
    Sketcher.Constraint("Coincident", 42, 2, 43, 1),
    Sketcher.Constraint("Coincident", 43, 2, 37, 1),
    Sketcher.Constraint("Coincident", 47, 1, 48, 1),
    Sketcher.Constraint("Coincident", 48, 2, 44, 2),
    Sketcher.Constraint("Horizontal", 0),
    Sketcher.Constraint("Horizontal", 2),
    Sketcher.Constraint("Horizontal", 4),
    Sketcher.Constraint("Horizontal", 6),
    Sketcher.Constraint("Horizontal", 25),
    Sketcher.Constraint("Horizontal", 27),
    Sketcher.Constraint("Horizontal", 30),
    Sketcher.Constraint("Horizontal", 32),
    Sketcher.Constraint("Horizontal", 35),
    Sketcher.Constraint("Horizontal", 43),
    Sketcher.Constraint("Horizontal", 0, 2, 3, 2),
    Sketcher.Constraint("Horizontal", 6, 2, 24, 2),
    Sketcher.Constraint("Horizontal", 2, 2, 26, 2),
    Sketcher.Constraint("Horizontal", 27, 2, 29, 2),
    Sketcher.Constraint("Horizontal", 25, 2, 31, 2),
    Sketcher.Constraint("Horizontal", 33, 2, 36, 2),
    Sketcher.Constraint("Horizontal", 28, 2, 37, 2),
    Sketcher.Constraint("Horizontal", 32, 2, 42, 2),
    Sketcher.Constraint("Vertical", 9, 2, 31, 2),
    Sketcher.Constraint("Vertical", 29, 2, 34, 2),
    Sketcher.Constraint("Equal", 27, 30),
    Sketcher.Constraint("Equal", 25, 32),
    Sketcher.Constraint("DistanceY", 5, 2, -1, 1, Q("0.2 in")),
    Sketcher.Constraint("DistanceX", 6, 1, 6, 2, 1.823161),
    Sketcher.Constraint("DistanceX", 4, 2, 6, 2, 0.282801),
    Sketcher.Constraint("DistanceX", 0, 2, 21, 2, 3.957202),
    Sketcher.Constraint("DistanceX", 17, 2, 25, 2, 16.815601),
    Sketcher.Constraint("DistanceX", 32, 2, 28, 2, 3.850901),
    Sketcher.Constraint("DistanceX", 9, 2, 33, 2, 3.850901),
    Sketcher.Constraint("DistanceX", 33, 2, 36, 2, 4.556899),
    Sketcher.Constraint("Distance", 3, 1.566469),
    Sketcher.Constraint("Distance", 7, 8.48425),
    Sketcher.Constraint("Distance", 31, 10.561739),
    Sketcher.Constraint("DistanceX", 0, 1, 0, 2, 3.174988),
    Sketcher.Constraint("DistanceX", 2, 2, 2, 1, 8.211244),
    Sketcher.Constraint("DistanceX", 4, 1, 4, 2, 3.209084),
    Sketcher.Constraint("DistanceX", 25, 1, 25, 2, 1.797087),
    Sketcher.Constraint("DistanceX", 27, 2, 27, 1, 1.026907),
    Sketcher.Constraint("DistanceX", 35, 1, 35, 2, 0.641817),
    Sketcher.Constraint("DistanceX", 43, 1, 43, 2, 1.827172),
    Sketcher.Constraint("DistanceY", -1, 1, 0, 2, 3.263619),
    Sketcher.Constraint("DistanceX", 1, 2, -1, 1, 7.93446),
    Sketcher.Constraint("DistanceX", -1, 1, 27, 2, 7.573438),
    Sketcher.Constraint("DistanceY", -1, 1, 33, 2, 0.311261),
    Sketcher.Constraint("DistanceX", 25, 2, 42, 2, 1.15527),
    Sketcher.Constraint("Distance", 34, 5.592284),
])
pad3 = body.newObject("PartDesign::Pad", "Pad002")
pad3.Profile = sketch4
pad3.Length = Q("0.05 in")
doc.recompute()

fillet = body.newObject("PartDesign::Fillet", "Fillet")
fillet.Base = (pad3, edges_at(pad3, [
    (6.35, 18.832, -13.752),
    (6.35, 20.32, 0),
    (6.35, 18.832, 13.752),
    (6.35, 0, 15.24),
    (6.35, -18.832, 13.752),
    (6.35, -20.32, 0),
    (-2.54, -27.94, -10.16),
    (-2.54, -27.94, 10.16),
    (-4.445, -35.56, -10.16),
    (-2.54, -35.56, 0),
    (-4.445, -35.56, 10.16),
    (6.35, -18.832, -13.752),
    (-4.445, 35.56, 10.16),
    (-2.54, 35.56, 0),
    (-2.54, 27.94, 10.16),
    (-4.445, 35.56, -10.16),
    (-2.54, 27.94, -10.16),
    (6.35, 0, -15.24),
]))
fillet.Radius = Q("0.075 in")

doc.recompute()
